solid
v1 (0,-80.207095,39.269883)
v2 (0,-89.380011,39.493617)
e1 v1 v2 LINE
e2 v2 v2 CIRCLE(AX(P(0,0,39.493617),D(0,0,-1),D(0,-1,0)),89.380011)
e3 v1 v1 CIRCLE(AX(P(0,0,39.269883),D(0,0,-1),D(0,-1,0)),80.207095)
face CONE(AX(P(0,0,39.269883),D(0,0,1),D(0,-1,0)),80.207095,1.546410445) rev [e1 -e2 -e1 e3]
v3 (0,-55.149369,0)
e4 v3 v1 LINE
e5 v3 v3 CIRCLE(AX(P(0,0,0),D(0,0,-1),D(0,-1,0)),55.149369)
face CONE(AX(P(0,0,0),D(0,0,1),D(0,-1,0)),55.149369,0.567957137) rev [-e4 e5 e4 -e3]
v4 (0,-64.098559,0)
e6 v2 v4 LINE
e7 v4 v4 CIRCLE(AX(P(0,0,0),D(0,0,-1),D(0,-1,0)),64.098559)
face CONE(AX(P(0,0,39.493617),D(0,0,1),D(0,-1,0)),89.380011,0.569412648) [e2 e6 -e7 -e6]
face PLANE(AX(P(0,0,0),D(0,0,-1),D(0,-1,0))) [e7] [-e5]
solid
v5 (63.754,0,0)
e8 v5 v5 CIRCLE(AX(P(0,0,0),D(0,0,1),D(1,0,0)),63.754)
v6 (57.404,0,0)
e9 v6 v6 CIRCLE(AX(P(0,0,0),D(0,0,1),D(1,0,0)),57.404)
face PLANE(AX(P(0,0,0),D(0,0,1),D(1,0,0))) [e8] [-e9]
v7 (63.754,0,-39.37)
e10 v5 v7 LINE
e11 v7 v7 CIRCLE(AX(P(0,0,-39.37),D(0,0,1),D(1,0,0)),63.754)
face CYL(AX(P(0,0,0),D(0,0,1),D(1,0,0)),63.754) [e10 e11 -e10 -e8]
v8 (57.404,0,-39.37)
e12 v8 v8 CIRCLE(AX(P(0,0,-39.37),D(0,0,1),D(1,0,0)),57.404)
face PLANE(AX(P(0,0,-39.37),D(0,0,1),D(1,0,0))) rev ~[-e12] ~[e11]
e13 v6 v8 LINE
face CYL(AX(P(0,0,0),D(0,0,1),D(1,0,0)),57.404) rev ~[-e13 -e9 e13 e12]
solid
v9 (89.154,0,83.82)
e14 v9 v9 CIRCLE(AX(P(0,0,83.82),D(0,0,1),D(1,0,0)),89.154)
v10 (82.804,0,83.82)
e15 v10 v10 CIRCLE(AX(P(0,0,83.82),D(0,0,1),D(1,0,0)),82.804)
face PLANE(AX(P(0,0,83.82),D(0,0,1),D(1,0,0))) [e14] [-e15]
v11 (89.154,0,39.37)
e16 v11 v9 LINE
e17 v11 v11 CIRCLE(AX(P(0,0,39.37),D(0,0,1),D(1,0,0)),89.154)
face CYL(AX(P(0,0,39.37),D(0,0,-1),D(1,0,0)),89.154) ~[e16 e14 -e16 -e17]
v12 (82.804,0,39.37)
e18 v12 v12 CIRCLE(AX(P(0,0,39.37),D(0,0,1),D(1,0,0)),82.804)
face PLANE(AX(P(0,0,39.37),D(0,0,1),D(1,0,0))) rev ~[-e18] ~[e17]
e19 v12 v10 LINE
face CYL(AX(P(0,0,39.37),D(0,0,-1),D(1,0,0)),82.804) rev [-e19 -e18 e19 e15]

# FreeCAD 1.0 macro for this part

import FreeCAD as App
import Part
import Sketcher
from FreeCAD import Vector
Q = App.Units.Quantity


def add_polygon(sketch, points):
    """Adds a closed chain of lines whose ends are joined by coincident constraints."""
    first, n = sketch.GeometryCount, len(points)
    for a, b in zip(points, points[1:] + points[:1]):
        sketch.addGeometry(Part.LineSegment(App.Vector(*a, 0), App.Vector(*b, 0)), False)
    for i in range(n):
        sketch.addConstraint(Sketcher.Constraint("Coincident", first + i, 2, first + (i + 1) % n, 1))

doc = App.newDocument("Part")
body = doc.addObject("PartDesign::Body", "Body")

# Sketch on XY plane
sketch1 = body.newObject("Sketcher::SketchObject", "Sketch")
sketch1.AttachmentSupport = (doc.getObject("XY_Plane"), [""])
sketch1.MapMode = "FlatFace"
sketch1.addGeometry(Part.Circle(Vector(0, 0, 0), Vector(0, 0, 1), 64), False)
sketch1.addConstraint(Sketcher.Constraint("Coincident", 0, 3, -1, 1))
sketch1.addConstraint(Sketcher.Constraint("Diameter", 0, Q("5.02 in")))
pad1 = body.newObject("PartDesign::Pad", "Pad")
pad1.Profile = sketch1
pad1.Length = Q("1.55 in")
pad1.Reversed = True

# Sketch on XY plane
sketch2 = body.newObject("Sketcher::SketchObject", "Sketch001")
sketch2.AttachmentSupport = (doc.getObject("XY_Plane"), [""])
sketch2.MapMode = "FlatFace"
sketch2.addGeometry(Part.Circle(Vector(0, 0, 0), Vector(0, 0, 1), 57), False)
sketch2.addConstraint(Sketcher.Constraint("Coincident", 0, 3, -1, 1))
sketch2.addConstraint(Sketcher.Constraint("Diameter", 0, Q("4.52 in")))
pocket1 = body.newObject("PartDesign::Pocket", "Pocket")
pocket1.Profile = sketch2
pocket1.Length = Q("1.55 in")
body2 = doc.addObject("PartDesign::Body", "Body001")

# Sketch on XY plane
sketch3 = body2.newObject("Sketcher::SketchObject", "Sketch002")
sketch3.AttachmentSupport = (doc.getObject("XY_Plane001"), [""])
sketch3.MapMode = "FlatFace"
sketch3.AttachmentOffset = App.Placement(Vector(0, 0, 1.55 * 25.4), App.Rotation())
sketch3.addGeometry(Part.Circle(Vector(0, 0, 0), Vector(0, 0, 1), 89), False)
sketch3.addGeometry(Part.Circle(Vector(0, 0, 0), Vector(0, 0, 1), 83), False)
sketch3.addConstraint(Sketcher.Constraint("Coincident", 0, 3, -1, 1))
sketch3.addConstraint(Sketcher.Constraint("Coincident", 1, 3, -1, 1))
sketch3.addConstraint(Sketcher.Constraint("Diameter", 0, Q("7.02 in")))
sketch3.addConstraint(Sketcher.Constraint("Diameter", 1, Q("6.52 in")))
pad2 = body2.newObject("PartDesign::Pad", "Pad001")
pad2.Profile = sketch3
pad2.Length = Q("1.75 in")
body3 = doc.addObject("PartDesign::Body", "Body002")

# Sketch on YZ plane
sketch4 = body3.newObject("Sketcher::SketchObject", "Sketch003")
sketch4.AttachmentSupport = (doc.getObject("YZ_Plane002"), [""])
sketch4.MapMode = "FlatFace"
add_polygon(sketch4, [(-80, 39), (-89, 39), (-64, 0), (-55, 0)])  # lines 0-3
sketch4.addConstraint(Sketcher.Constraint("Horizontal", 2))
sketch4.addConstraint(Sketcher.Constraint("PointOnObject", 1, 2, -1))
sketch4.addConstraint(Sketcher.Constraint("DistanceX", 2, 1, 2, 2, 8.94919))
sketch4.addConstraint(Sketcher.Constraint("DistanceX", 0, 2, -1, 1, 89.380011))
sketch4.addConstraint(Sketcher.Constraint("DistanceX", 1, 2, -1, 1, 64.098559))
sketch4.addConstraint(Sketcher.Constraint("Distance", 0, 9.175644))
sketch4.addConstraint(Sketcher.Constraint("Distance", 1, 46.892404))
sketch4.addConstraint(Sketcher.Constraint("Distance", 3, 46.583402))
revolution = body3.newObject("PartDesign::Revolution", "Revolution")
revolution.Profile = sketch4
revolution.ReferenceAxis = (sketch4, ["V_Axis"])
revolution.Angle = 360

doc.recompute()
